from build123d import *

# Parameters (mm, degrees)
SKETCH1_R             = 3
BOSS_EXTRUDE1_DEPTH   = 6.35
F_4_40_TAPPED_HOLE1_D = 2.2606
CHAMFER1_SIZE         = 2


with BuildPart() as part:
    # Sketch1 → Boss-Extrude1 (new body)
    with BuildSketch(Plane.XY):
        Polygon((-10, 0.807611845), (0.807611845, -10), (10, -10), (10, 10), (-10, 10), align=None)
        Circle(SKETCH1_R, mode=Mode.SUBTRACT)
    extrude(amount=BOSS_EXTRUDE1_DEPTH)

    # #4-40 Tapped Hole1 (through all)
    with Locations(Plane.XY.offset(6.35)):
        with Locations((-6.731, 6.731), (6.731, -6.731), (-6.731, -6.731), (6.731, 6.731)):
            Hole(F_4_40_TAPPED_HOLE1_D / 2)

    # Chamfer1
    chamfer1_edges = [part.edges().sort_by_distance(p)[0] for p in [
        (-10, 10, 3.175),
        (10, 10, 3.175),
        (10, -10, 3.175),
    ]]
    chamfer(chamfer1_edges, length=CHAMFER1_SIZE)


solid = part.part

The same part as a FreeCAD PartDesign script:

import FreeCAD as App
import Part
import Sketcher

V = App.Vector


def edges_at(feature, points):
    """Names of the edges that pass closest to the given points."""
    edges = feature.Shape.Edges
    near = lambda p: min(range(len(edges)), key=lambda i: edges[i].distToShape(Part.Vertex(*p))[0])
    return sorted({f"Edge{near(p) + 1}" for p in points})


def add_polygon(sketch, points):
    """Adds a closed chain of lines whose ends are joined by coincident constraints."""
    first, n = sketch.GeometryCount, len(points)
    for a, b in zip(points, points[1:] + points[:1]):
        sketch.addGeometry(Part.LineSegment(App.Vector(*a, 0), App.Vector(*b, 0)), False)
    for i in range(n):
        sketch.addConstraint(Sketcher.Constraint("Coincident", first + i, 2, first + (i + 1) % n, 1))

doc = App.newDocument("Part")
body = doc.addObject("PartDesign::Body", "Body")

sketch1 = body.newObject("Sketcher::SketchObject", "Sketch")
sketch1.AttachmentSupport = (doc.getObject("XY_Plane"), [""])
sketch1.MapMode = "FlatFace"
add_polygon(sketch1, [(-10, 0.8), (0.8, -10), (10, -10), (10, 10), (-10, 10)])
sketch1.addGeometry(Part.Circle(V(0, 0, 0), V(0, 0, 1), 3), False)
sketch1.addConstraint(Sketcher.Constraint("Horizontal", 1))
sketch1.addConstraint(Sketcher.Constraint("Vertical", 2))
sketch1.addConstraint(Sketcher.Constraint("Horizontal", 3))
sketch1.addConstraint(Sketcher.Constraint("Vertical", 4))
sketch1.addConstraint(Sketcher.Constraint("Coincident", 5, 3, -1, 1))
sketch1.addConstraint(Sketcher.Constraint("Symmetric", 1, 2, 3, 2, -1, 1))
sketch1.addConstraint(Sketcher.Constraint("Equal", 3, 2))
sketch1.addConstraint(Sketcher.Constraint("Equal", 1, 4))
sketch1.addConstraint(Sketcher.Constraint("Diameter", 5, 6.0))
sketch1.addConstraint(Sketcher.Constraint("DistanceX", 3, 2, 3, 1, 20.0))
sketch1.addConstraint(Sketcher.Constraint("DistanceX", 1, 1, 1, 2, 9.192388))
pad1 = body.newObject("PartDesign::Pad", "Pad")
pad1.Profile = sketch1
pad1.Length = 6.35

sketch2 = body.newObject("Sketcher::SketchObject", "Sketch001")
sketch2.AttachmentSupport = (doc.getObject("XY_Plane"), [""])
sketch2.MapMode = "FlatFace"
sketch2.AttachmentOffset = App.Placement(V(0, 0, 6.35), App.Rotation())
sketch2.addGeometry(Part.Circle(V(-6.7, 6.7, 0), V(0, 0, 1), 1.1), False)
sketch2.addGeometry(Part.Circle(V(6.7, -6.7, 0), V(0, 0, 1), 1.1), False)
sketch2.addGeometry(Part.Circle(V(-6.7, -6.7, 0), V(0, 0, 1), 1.1), False)
sketch2.addGeometry(Part.Circle(V(6.7, 6.7, 0), V(0, 0, 1), 1.1), False)
sketch2.addConstraint(Sketcher.Constraint("Equal", 0, 1))
sketch2.addConstraint(Sketcher.Constraint("Equal", 1, 2))
sketch2.addConstraint(Sketcher.Constraint("Equal", 2, 3))
sketch2.addConstraint(Sketcher.Constraint("Symmetric", 0, 3, 1, 3, -1, 1))
sketch2.addConstraint(Sketcher.Constraint("Symmetric", 2, 3, 3, 3, -1, 1))
sketch2.addConstraint(Sketcher.Constraint("Symmetric", 1, 3, 2, 3, -2))
sketch2.addConstraint(Sketcher.Constraint("Diameter", 0, 2.2606))
sketch2.addConstraint(Sketcher.Constraint("DistanceX", 0, 3, -1, 1, 6.731))
sketch2.addConstraint(Sketcher.Constraint("DistanceY", -1, 1, 0, 3, 6.731))
doc.recompute()
hole = body.newObject("PartDesign::Hole", "Hole")
hole.Profile = sketch2
hole.ThreadType = "None"
hole.Diameter = 2.2606
hole.DepthType = "ThroughAll"
doc.recompute()

chamfer = body.newObject("PartDesign::Chamfer", "Chamfer")
chamfer.Base = (hole, edges_at(hole, [(-10, 10, 3.175), (10, 10, 3.175), (10, -10, 3.175)]))
chamfer.Size = 2

doc.recompute()
